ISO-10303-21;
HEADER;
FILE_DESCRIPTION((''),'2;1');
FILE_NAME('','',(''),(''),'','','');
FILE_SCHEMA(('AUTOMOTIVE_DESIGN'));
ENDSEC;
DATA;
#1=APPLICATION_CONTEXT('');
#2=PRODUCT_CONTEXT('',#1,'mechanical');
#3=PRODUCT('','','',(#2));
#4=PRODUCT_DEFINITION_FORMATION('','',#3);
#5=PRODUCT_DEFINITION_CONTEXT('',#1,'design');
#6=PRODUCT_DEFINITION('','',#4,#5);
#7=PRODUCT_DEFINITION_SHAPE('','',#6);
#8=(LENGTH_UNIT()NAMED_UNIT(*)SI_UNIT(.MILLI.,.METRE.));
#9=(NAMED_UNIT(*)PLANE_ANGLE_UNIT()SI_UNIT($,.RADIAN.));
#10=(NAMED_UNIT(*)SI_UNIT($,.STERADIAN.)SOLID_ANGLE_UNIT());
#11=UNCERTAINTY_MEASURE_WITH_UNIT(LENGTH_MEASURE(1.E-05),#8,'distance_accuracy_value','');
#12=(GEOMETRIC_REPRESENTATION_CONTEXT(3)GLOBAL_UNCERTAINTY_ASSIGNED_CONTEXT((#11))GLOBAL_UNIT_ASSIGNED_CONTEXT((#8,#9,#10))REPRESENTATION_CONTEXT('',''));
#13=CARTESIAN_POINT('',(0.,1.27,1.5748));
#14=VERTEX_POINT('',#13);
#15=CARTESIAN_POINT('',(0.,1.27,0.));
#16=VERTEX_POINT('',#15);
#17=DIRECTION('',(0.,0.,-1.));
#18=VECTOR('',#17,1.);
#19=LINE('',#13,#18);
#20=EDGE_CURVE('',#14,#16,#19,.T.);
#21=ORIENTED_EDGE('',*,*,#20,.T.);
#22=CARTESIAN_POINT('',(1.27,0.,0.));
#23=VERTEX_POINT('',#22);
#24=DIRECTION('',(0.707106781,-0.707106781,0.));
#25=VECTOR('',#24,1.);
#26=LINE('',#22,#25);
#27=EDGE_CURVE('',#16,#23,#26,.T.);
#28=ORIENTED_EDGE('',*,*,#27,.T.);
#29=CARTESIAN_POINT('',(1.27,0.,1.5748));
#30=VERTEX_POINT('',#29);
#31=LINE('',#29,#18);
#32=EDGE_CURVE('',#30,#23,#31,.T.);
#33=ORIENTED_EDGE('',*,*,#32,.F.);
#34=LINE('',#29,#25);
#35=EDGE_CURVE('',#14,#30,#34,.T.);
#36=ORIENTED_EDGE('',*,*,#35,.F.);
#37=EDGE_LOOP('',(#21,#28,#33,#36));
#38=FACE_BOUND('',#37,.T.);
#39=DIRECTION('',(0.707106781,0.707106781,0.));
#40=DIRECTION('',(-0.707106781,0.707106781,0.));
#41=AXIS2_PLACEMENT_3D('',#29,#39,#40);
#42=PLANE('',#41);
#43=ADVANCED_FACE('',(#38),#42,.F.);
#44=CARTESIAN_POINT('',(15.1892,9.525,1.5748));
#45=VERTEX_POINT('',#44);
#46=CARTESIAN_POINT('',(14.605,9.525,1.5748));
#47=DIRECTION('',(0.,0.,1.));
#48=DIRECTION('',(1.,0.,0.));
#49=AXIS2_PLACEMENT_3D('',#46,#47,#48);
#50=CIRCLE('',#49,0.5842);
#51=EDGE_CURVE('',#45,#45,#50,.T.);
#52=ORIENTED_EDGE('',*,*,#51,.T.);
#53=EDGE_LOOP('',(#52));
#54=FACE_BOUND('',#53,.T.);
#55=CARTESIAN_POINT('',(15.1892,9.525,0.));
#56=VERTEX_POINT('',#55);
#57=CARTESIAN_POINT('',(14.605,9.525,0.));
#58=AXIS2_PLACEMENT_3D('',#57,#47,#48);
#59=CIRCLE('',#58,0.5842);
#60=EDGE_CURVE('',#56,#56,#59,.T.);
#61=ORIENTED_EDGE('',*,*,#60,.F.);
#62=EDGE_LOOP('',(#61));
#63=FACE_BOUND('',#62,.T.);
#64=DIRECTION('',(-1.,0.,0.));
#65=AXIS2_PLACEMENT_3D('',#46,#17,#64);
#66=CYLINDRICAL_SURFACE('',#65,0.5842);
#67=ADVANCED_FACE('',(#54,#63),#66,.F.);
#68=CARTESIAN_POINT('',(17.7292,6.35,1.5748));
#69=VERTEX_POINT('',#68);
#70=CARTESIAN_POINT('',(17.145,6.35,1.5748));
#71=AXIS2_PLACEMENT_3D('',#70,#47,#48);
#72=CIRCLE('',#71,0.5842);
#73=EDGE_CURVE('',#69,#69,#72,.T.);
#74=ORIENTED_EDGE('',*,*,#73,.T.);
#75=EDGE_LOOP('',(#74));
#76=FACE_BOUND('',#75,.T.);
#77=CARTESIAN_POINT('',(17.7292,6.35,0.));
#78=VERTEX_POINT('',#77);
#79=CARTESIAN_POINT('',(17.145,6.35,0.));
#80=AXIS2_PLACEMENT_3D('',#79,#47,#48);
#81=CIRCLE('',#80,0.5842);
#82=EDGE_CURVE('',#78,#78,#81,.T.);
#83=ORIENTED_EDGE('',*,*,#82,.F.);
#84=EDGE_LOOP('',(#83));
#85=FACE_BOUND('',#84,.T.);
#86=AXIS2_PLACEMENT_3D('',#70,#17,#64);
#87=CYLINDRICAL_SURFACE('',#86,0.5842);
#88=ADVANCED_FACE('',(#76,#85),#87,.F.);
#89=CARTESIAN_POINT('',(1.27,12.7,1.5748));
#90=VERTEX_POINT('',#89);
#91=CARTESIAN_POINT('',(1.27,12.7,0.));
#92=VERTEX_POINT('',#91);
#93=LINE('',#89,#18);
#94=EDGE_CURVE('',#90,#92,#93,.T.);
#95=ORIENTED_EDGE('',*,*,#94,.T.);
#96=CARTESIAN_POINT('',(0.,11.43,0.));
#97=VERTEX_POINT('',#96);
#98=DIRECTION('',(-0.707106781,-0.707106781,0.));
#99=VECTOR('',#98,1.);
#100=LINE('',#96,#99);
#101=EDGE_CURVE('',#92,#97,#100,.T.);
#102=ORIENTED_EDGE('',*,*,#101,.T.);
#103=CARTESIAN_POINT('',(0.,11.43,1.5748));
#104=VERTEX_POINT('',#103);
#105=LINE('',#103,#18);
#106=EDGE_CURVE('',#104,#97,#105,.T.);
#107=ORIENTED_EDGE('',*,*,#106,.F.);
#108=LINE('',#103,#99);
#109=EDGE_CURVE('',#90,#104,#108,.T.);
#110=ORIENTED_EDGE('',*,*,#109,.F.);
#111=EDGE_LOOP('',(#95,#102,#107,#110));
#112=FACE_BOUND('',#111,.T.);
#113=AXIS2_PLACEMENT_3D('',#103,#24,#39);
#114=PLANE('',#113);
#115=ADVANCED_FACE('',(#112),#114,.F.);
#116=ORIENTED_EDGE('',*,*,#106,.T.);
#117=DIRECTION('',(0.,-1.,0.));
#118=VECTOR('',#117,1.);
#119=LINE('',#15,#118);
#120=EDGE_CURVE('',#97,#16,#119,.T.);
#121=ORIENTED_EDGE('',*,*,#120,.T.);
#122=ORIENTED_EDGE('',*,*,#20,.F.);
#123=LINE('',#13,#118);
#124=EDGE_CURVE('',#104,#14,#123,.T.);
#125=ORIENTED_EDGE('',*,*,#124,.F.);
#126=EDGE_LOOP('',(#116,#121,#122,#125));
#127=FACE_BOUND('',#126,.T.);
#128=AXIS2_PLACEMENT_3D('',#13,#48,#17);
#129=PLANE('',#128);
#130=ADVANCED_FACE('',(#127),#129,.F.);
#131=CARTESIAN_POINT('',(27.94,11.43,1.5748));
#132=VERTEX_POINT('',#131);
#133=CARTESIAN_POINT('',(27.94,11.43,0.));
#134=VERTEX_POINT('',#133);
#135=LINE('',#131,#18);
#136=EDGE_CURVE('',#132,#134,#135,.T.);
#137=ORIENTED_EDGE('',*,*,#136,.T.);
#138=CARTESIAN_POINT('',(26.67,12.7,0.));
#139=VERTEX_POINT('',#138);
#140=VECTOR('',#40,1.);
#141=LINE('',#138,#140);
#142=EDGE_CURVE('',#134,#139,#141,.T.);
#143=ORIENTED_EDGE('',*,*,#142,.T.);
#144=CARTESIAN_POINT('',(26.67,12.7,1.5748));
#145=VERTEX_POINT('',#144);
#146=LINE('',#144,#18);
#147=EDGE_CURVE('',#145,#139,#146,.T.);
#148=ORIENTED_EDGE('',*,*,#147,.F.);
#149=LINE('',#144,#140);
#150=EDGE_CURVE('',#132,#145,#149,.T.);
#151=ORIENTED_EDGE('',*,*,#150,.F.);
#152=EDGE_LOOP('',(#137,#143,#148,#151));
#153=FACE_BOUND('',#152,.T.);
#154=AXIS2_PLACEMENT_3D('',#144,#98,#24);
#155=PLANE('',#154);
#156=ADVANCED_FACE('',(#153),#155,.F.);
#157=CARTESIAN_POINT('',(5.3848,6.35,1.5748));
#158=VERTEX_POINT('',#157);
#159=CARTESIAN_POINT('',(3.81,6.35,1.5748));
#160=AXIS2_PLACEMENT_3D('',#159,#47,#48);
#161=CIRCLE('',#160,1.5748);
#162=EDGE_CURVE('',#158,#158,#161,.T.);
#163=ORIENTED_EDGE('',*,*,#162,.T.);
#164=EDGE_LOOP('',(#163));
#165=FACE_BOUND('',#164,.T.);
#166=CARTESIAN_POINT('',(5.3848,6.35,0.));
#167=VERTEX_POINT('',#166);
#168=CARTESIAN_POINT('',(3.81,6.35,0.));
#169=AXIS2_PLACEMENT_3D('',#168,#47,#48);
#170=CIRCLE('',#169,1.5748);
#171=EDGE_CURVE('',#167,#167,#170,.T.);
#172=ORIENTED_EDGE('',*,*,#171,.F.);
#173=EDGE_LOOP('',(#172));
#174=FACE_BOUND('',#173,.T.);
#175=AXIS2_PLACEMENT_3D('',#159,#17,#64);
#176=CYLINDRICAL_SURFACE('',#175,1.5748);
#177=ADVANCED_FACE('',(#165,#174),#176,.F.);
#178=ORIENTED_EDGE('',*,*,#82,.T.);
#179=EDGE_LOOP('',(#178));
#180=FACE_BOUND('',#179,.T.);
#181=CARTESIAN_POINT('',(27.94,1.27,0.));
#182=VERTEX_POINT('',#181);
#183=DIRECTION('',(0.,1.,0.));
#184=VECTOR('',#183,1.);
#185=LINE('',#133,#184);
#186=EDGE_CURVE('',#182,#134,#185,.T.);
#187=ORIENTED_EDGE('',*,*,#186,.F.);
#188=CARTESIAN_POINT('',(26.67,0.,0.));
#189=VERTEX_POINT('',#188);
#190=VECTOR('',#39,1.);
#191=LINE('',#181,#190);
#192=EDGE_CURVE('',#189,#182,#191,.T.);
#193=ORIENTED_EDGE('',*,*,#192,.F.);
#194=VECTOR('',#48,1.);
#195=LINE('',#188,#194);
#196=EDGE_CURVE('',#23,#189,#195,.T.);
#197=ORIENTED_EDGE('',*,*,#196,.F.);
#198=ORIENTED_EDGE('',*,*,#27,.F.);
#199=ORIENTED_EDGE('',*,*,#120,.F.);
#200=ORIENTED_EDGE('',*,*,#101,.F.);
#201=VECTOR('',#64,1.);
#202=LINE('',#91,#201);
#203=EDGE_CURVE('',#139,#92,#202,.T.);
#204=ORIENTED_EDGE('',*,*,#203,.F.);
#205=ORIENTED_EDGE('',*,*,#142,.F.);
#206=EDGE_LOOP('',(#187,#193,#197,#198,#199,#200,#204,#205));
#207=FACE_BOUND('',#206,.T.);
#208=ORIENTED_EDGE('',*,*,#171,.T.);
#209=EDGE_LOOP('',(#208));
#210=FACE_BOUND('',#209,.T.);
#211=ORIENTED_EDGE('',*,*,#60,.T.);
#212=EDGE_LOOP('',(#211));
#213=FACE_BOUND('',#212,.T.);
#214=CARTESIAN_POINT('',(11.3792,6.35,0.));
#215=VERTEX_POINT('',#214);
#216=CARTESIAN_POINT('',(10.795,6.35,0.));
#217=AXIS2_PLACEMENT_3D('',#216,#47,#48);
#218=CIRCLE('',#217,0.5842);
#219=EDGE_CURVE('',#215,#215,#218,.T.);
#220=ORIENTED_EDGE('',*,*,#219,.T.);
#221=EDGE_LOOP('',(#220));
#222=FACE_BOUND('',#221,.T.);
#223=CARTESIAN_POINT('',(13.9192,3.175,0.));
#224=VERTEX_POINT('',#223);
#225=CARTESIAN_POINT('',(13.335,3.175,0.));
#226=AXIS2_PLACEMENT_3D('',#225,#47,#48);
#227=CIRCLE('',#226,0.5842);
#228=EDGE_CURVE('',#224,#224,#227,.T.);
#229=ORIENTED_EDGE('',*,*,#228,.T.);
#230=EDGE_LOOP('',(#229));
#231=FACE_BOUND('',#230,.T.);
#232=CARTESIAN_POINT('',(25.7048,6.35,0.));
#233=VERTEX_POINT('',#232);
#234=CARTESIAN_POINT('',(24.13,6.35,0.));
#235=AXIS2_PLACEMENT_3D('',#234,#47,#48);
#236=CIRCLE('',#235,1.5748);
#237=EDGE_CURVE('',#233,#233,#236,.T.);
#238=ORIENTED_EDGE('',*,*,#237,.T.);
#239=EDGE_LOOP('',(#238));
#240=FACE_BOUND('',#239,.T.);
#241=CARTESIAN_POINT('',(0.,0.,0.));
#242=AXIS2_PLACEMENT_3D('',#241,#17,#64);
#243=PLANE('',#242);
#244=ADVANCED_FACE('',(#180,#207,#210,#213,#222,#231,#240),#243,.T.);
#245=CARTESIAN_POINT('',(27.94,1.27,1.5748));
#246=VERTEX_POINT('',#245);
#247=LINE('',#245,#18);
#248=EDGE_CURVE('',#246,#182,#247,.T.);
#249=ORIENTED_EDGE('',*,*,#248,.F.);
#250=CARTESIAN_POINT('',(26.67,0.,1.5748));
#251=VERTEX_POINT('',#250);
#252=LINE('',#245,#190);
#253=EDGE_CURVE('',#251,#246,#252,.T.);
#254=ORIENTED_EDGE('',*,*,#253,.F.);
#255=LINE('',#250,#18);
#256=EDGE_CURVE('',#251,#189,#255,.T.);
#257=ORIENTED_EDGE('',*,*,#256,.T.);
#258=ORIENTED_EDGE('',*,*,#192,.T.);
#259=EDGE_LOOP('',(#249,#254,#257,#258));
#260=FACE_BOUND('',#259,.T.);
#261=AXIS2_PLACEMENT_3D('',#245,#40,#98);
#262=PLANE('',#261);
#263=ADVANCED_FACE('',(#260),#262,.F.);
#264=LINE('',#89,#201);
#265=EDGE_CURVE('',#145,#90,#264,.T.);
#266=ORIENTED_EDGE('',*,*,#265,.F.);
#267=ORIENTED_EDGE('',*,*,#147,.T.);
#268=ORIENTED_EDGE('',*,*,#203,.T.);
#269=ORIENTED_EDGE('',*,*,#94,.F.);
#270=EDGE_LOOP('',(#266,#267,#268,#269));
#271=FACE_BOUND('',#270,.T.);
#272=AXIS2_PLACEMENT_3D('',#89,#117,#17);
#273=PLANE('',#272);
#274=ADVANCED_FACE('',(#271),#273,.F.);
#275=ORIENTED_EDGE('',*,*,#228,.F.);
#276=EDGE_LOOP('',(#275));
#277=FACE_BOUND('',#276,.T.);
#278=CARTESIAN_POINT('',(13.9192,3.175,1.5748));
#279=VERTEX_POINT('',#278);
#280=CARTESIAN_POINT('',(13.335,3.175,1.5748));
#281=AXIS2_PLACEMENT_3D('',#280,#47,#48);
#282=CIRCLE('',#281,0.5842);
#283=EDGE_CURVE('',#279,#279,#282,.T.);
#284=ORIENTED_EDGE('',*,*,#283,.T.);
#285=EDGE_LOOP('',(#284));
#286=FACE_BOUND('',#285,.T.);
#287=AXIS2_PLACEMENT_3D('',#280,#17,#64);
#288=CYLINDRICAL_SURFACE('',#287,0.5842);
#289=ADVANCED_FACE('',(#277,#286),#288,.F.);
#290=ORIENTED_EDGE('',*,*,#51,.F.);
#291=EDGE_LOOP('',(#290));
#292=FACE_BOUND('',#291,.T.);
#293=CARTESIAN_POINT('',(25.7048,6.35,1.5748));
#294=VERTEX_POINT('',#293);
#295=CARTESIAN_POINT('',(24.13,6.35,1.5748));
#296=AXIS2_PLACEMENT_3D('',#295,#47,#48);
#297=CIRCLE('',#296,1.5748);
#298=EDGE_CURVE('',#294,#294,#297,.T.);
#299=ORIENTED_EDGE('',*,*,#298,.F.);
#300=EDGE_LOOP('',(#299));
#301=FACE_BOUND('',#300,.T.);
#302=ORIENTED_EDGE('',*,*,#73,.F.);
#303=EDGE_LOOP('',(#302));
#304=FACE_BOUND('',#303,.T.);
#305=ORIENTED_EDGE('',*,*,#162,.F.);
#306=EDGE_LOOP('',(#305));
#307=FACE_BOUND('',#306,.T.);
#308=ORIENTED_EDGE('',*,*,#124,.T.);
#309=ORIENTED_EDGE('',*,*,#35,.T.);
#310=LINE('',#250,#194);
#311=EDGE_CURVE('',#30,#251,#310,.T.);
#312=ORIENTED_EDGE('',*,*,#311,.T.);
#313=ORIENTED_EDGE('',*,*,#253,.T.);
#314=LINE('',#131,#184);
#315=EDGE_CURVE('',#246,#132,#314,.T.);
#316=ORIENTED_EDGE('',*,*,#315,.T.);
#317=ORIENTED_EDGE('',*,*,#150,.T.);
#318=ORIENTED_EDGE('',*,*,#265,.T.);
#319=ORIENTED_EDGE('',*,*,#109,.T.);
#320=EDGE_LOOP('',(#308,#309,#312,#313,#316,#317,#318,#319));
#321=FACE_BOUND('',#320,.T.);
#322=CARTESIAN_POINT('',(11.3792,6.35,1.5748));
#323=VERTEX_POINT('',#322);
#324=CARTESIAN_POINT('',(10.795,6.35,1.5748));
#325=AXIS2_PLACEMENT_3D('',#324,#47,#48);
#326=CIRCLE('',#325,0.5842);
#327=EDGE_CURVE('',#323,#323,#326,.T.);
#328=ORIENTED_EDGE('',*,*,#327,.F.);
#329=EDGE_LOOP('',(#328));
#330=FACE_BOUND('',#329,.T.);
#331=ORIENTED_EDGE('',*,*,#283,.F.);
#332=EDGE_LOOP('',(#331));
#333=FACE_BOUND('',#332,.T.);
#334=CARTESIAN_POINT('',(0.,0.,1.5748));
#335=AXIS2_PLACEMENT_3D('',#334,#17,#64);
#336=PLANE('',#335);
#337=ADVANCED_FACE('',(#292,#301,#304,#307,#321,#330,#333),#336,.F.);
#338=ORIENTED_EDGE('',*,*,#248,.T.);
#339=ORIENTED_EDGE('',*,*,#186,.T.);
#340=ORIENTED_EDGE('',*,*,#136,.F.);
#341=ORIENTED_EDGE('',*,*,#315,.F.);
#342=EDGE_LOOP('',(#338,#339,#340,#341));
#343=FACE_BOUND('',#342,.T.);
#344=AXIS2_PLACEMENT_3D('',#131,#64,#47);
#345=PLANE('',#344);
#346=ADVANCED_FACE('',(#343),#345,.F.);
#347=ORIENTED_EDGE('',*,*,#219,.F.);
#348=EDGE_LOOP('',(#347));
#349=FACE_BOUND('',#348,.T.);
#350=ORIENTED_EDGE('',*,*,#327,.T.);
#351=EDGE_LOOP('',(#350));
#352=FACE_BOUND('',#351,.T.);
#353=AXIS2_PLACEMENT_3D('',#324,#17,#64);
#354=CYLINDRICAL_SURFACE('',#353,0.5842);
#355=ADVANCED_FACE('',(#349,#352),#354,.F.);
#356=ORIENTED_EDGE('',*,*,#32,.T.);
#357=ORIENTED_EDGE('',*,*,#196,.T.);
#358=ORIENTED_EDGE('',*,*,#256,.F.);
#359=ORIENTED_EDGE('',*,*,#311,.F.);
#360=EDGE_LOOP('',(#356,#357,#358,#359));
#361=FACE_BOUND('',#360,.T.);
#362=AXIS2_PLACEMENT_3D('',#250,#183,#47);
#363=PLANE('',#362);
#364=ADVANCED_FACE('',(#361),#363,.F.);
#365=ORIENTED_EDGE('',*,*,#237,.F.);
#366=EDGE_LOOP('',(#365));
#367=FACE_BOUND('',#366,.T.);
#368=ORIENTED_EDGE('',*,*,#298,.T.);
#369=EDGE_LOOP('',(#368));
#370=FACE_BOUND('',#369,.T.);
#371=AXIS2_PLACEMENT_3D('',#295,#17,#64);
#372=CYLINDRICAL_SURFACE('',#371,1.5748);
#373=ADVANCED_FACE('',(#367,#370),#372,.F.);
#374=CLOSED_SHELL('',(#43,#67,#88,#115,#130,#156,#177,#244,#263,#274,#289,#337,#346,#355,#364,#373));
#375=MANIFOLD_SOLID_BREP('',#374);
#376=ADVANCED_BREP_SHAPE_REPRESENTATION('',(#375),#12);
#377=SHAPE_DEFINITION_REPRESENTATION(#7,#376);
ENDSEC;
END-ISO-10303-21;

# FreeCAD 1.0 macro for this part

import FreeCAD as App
import Part
import Sketcher
from FreeCAD import Vector
Q = App.Units.Quantity


def add_polygon(sketch, points):
    """Adds a closed chain of lines whose ends are joined by coincident constraints."""
    first, n = sketch.GeometryCount, len(points)
    for a, b in zip(points, points[1:] + points[:1]):
        sketch.addGeometry(Part.LineSegment(App.Vector(*a, 0), App.Vector(*b, 0)), False)
    for i in range(n):
        sketch.addConstraint(Sketcher.Constraint("Coincident", first + i, 2, first + (i + 1) % n, 1))

doc = App.newDocument("Part")
body = doc.addObject("PartDesign::Body", "Body")

# Sketch on XY plane
sketch1 = body.newObject("Sketcher::SketchObject", "Sketch")
sketch1.AttachmentSupport = (doc.getObject("XY_Plane"), [""])
sketch1.MapMode = "FlatFace"
add_polygon(sketch1, [(1.27, 12.7), (0, 11.43), (0, 1.27), (1.27, 0), (26.67, 0), (27.94, 1.27), (27.94, 11.43), (26.67, 12.7)])  # lines 0-7
sketch1.addGeometry(Part.Circle(Vector(24.13, 6.35, 0), Vector(0, 0, 1), 1.5748), False)  # 8
sketch1.addGeometry(Part.Circle(Vector(17.145, 6.35, 0), Vector(0, 0, 1), 0.5842), False)  # 9
sketch1.addGeometry(Part.Circle(Vector(13.335, 3.175, 0), Vector(0, 0, 1), 0.5842), False)  # 10
sketch1.addGeometry(Part.Circle(Vector(10.795, 6.35, 0), Vector(0, 0, 1), 0.5842), False)  # 11
sketch1.addGeometry(Part.Circle(Vector(3.81, 6.35, 0), Vector(0, 0, 1), 1.5748), False)  # 12
sketch1.addGeometry(Part.Circle(Vector(14.605, 9.525, 0), Vector(0, 0, 1), 0.5842), False)  # 13
sketch1.addConstraint([
    Sketcher.Constraint("Vertical", 1),
    Sketcher.Constraint("Horizontal", 3),
    Sketcher.Constraint("Vertical", 5),
    Sketcher.Constraint("Horizontal", 7),
    Sketcher.Constraint("Equal", 9, 10),
    Sketcher.Constraint("Equal", 10, 11),
    Sketcher.Constraint("Equal", 8, 12),
    Sketcher.Constraint("Equal", 11, 13),
    Sketcher.Constraint("PointOnObject", 0, 2, -2),
    Sketcher.Constraint("PointOnObject", 2, 2, -1),
    Sketcher.Constraint("Perpendicular", 0, 2),
    Sketcher.Constraint("Perpendicular", 2, 4),
    Sketcher.Constraint("Perpendicular", 4, 6),
    Sketcher.Constraint("Horizontal", 8, 3, 9, 3),
    Sketcher.Constraint("Horizontal", 9, 3, 11, 3),
    Sketcher.Constraint("Horizontal", 11, 3, 12, 3),
    Sketcher.Constraint("Horizontal", 1, 2, 4, 2),
    Sketcher.Constraint("Horizontal", 0, 2, 5, 2),
    Sketcher.Constraint("Vertical", 3, 2, 6, 2),
    Sketcher.Constraint("Vertical", 2, 2, 7, 2),
    Sketcher.Constraint("DistanceX", 3, 1, 3, 2, Q("1 in")),
    Sketcher.Constraint("Diameter", 8, Q("0.124 in")),
    Sketcher.Constraint("Diameter", 9, Q("0.046 in")),
    Sketcher.Constraint("DistanceY", 1, 2, 1, 1, Q("0.4 in")),
    Sketcher.Constraint("DistanceX", -1, 1, 4, 2, Q("1.1 in")),
    Sketcher.Constraint("DistanceX", 11, 3, 10, 3, Q("0.1 in")),
    Sketcher.Constraint("DistanceX", 12, 3, 8, 3, Q("0.8 in")),
    Sketcher.Constraint("DistanceX", 13, 3, 9, 3, Q("0.1 in")),
    Sketcher.Constraint("DistanceY", 12, 3, 0, 2, Q("0.2 in")),
    Sketcher.Constraint("DistanceX", 2, 2, 12, 3, Q("0.1 in")),
    Sketcher.Constraint("DistanceX", 10, 3, 9, 3, Q("0.15 in")),
    Sketcher.Constraint("DistanceY", 10, 3, 13, 3, Q("0.25 in")),
    Sketcher.Constraint("DistanceX", -1, 1, 9, 3, Q("0.675 in")),
    Sketcher.Constraint("DistanceY", -1, 1, 10, 3, Q("0.125 in")),
])
pad1 = body.newObject("PartDesign::Pad", "Pad")
pad1.Profile = sketch1
pad1.Length = Q("0.062 in")

doc.recompute()
